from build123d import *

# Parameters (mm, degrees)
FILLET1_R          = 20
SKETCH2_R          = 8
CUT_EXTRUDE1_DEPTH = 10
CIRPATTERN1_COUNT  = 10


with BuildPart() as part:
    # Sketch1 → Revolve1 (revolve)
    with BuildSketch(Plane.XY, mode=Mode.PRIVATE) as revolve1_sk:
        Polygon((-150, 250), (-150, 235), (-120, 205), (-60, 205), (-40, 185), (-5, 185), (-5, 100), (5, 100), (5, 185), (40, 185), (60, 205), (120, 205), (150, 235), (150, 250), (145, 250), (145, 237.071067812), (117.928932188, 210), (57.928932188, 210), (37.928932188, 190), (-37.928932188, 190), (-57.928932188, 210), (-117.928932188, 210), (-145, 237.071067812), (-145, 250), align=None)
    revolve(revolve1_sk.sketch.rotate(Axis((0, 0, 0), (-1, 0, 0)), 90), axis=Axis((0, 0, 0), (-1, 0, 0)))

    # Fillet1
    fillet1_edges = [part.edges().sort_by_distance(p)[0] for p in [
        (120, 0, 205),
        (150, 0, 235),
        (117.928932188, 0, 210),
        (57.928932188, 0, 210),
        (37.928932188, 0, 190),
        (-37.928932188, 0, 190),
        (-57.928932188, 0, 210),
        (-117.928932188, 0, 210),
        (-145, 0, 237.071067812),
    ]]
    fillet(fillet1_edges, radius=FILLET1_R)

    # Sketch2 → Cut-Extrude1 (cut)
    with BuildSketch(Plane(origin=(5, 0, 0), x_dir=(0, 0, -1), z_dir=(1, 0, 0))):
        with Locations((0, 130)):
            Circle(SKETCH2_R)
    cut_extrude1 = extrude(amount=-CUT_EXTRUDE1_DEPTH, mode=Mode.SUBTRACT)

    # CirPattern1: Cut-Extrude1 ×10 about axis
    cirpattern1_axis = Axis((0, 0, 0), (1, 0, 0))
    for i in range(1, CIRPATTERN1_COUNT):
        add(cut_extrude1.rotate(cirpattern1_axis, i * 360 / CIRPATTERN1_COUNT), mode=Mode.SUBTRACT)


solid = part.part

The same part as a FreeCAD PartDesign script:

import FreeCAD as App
import Part
import Sketcher

V = App.Vector


def edges_at(feature, points):
    """Names of the edges that pass closest to the given points."""
    edges = feature.Shape.Edges
    near = lambda p: min(range(len(edges)), key=lambda i: edges[i].distToShape(Part.Vertex(*p))[0])
    return sorted({f"Edge{near(p) + 1}" for p in points})


def add_polygon(sketch, points):
    """Adds a closed chain of lines whose ends are joined by coincident constraints."""
    first, n = sketch.GeometryCount, len(points)
    for a, b in zip(points, points[1:] + points[:1]):
        sketch.addGeometry(Part.LineSegment(App.Vector(*a, 0), App.Vector(*b, 0)), False)
    for i in range(n):
        sketch.addConstraint(Sketcher.Constraint("Coincident", first + i, 2, first + (i + 1) % n, 1))

doc = App.newDocument("Part")
body = doc.addObject("PartDesign::Body", "Body")

# Sketch on XY plane
sketch1 = doc.addObject("Sketcher::SketchObject", "Sketch")
body.addObject(sketch1)
sketch1.AttachmentSupport = (doc.XY_Plane, [""])
sketch1.MapMode = "FlatFace"
add_polygon(sketch1, [(-150, 250), (-150, 235), (-120, 205), (-60, 205), (-40, 185), (-5, 185), (-5, 100), (5, 100), (5, 185), (40, 185), (60, 205), (120, 205), (150, 235), (150, 250), (145, 250), (145, 237), (118, 210), (58, 210), (38, 190), (-38, 190), (-58, 210), (-118, 210), (-145, 237), (-145, 250)])  # lines 0-23
sketch1.addConstraint(Sketcher.Constraint("Vertical", 0))
sketch1.addConstraint(Sketcher.Constraint("Horizontal", 2))
sketch1.addConstraint(Sketcher.Constraint("Horizontal", 4))
sketch1.addConstraint(Sketcher.Constraint("Vertical", 5))
sketch1.addConstraint(Sketcher.Constraint("Horizontal", 6))
sketch1.addConstraint(Sketcher.Constraint("Vertical", 7))
sketch1.addConstraint(Sketcher.Constraint("Horizontal", 8))
sketch1.addConstraint(Sketcher.Constraint("Horizontal", 10))
sketch1.addConstraint(Sketcher.Constraint("Vertical", 12))
sketch1.addConstraint(Sketcher.Constraint("Horizontal", 13))
sketch1.addConstraint(Sketcher.Constraint("Vertical", 14))
sketch1.addConstraint(Sketcher.Constraint("Horizontal", 16))
sketch1.addConstraint(Sketcher.Constraint("Horizontal", 18))
sketch1.addConstraint(Sketcher.Constraint("Horizontal", 20))
sketch1.addConstraint(Sketcher.Constraint("Vertical", 22))
sketch1.addConstraint(Sketcher.Constraint("Horizontal", 23))
sketch1.addConstraint(Sketcher.Constraint("Symmetric", 4, 2, 7, 2, -2))
sketch1.addConstraint(Sketcher.Constraint("Symmetric", 2, 2, 9, 2, -2))
sketch1.addConstraint(Sketcher.Constraint("Symmetric", 0, 2, 11, 2, -2))
sketch1.addConstraint(Sketcher.Constraint("Symmetric", 16, 2, 19, 2, -2))
sketch1.addConstraint(Sketcher.Constraint("Symmetric", 14, 2, 21, 2, -2))
sketch1.addConstraint(Sketcher.Constraint("Parallel", 1, 3))
sketch1.addConstraint(Sketcher.Constraint("Perpendicular", 3, 9))
sketch1.addConstraint(Sketcher.Constraint("Parallel", 9, 11))
sketch1.addConstraint(Sketcher.Constraint("Parallel", 11, 15))
sketch1.addConstraint(Sketcher.Constraint("Parallel", 15, 17))
sketch1.addConstraint(Sketcher.Constraint("Perpendicular", 17, 19))
sketch1.addConstraint(Sketcher.Constraint("Parallel", 19, 21))
sketch1.addConstraint(Sketcher.Constraint("Horizontal", 13, 2, 22, 2))
sketch1.addConstraint(Sketcher.Constraint("Equal", 4, 8))
sketch1.addConstraint(Sketcher.Constraint("Equal", 10, 16))
sketch1.addConstraint(Sketcher.Constraint("Equal", 9, 17))
sketch1.addConstraint(Sketcher.Constraint("DistanceX", 2, 1, 2, 2, 60.0))
sketch1.addConstraint(Sketcher.Constraint("DistanceX", 4, 1, 4, 2, 35.0))
sketch1.addConstraint(Sketcher.Constraint("DistanceX", 6, 1, 6, 2, 10.0))
sketch1.addConstraint(Sketcher.Constraint("DistanceX", 13, 2, 13, 1, 5.0))
sketch1.addConstraint(Sketcher.Constraint("DistanceY", 0, 2, 0, 1, 15.0))
sketch1.addConstraint(Sketcher.Constraint("DistanceY", 5, 2, 5, 1, 85.0))
sketch1.addConstraint(Sketcher.Constraint("DistanceX", 0, 2, -1, 1, 150.0))
sketch1.addConstraint(Sketcher.Constraint("DistanceY", -1, 1, 0, 2, 235.0))
sketch1.addConstraint(Sketcher.Constraint("DistanceX", 1, 2, -1, 1, 120.0))
sketch1.addConstraint(Sketcher.Constraint("DistanceY", -1, 1, 15, 2, 210.0))
sketch1.addConstraint(Sketcher.Constraint("Distance", 15, 38.284271))
revolution = doc.addObject("PartDesign::Revolution", "Revolution")
body.addObject(revolution)
revolution.Profile = sketch1
revolution.ReferenceAxis = (sketch1, ["H_Axis"])
revolution.Angle = 360
doc.recompute()

fillet = doc.addObject("PartDesign::Fillet", "Fillet")
body.addObject(fillet)
fillet.Base = (revolution, edges_at(revolution, [
    (120, 0, 205),
    (150, 0, 235),
    (117.929, 0, 210),
    (57.929, 0, 210),
    (37.929, 0, 190),
    (-37.929, 0, 190),
    (-57.929, 0, 210),
    (-117.929, 0, 210),
    (-145, 0, 237.071),
]))
fillet.Radius = 20

# Sketch on YZ plane
sketch2 = doc.addObject("Sketcher::SketchObject", "Sketch001")
body.addObject(sketch2)
sketch2.AttachmentSupport = (doc.YZ_Plane, [""])
sketch2.MapMode = "FlatFace"
sketch2.AttachmentOffset = App.Placement(V(0, 0, 5), App.Rotation())
sketch2.addGeometry(Part.Circle(V(130, 0, 0), V(0, 0, 1), 8), False)
sketch2.addConstraint(Sketcher.Constraint("PointOnObject", 0, 3, -1))
sketch2.addConstraint(Sketcher.Constraint("Diameter", 0, 16.0))
sketch2.addConstraint(Sketcher.Constraint("DistanceX", -1, 1, 0, 3, 130.0))
pocket1 = doc.addObject("PartDesign::Pocket", "Pocket")
body.addObject(pocket1)
pocket1.Profile = sketch2
pocket1.Length = 10
doc.recompute()

polarpattern = doc.addObject("PartDesign::PolarPattern", "PolarPattern")
body.addObject(polarpattern)
polarpattern.Originals = [pocket1]
polarpattern.Axis = (doc.X_Axis, [""])
polarpattern.Angle = 360
polarpattern.Occurrences = 10
body.Tip = polarpattern

doc.recompute()
